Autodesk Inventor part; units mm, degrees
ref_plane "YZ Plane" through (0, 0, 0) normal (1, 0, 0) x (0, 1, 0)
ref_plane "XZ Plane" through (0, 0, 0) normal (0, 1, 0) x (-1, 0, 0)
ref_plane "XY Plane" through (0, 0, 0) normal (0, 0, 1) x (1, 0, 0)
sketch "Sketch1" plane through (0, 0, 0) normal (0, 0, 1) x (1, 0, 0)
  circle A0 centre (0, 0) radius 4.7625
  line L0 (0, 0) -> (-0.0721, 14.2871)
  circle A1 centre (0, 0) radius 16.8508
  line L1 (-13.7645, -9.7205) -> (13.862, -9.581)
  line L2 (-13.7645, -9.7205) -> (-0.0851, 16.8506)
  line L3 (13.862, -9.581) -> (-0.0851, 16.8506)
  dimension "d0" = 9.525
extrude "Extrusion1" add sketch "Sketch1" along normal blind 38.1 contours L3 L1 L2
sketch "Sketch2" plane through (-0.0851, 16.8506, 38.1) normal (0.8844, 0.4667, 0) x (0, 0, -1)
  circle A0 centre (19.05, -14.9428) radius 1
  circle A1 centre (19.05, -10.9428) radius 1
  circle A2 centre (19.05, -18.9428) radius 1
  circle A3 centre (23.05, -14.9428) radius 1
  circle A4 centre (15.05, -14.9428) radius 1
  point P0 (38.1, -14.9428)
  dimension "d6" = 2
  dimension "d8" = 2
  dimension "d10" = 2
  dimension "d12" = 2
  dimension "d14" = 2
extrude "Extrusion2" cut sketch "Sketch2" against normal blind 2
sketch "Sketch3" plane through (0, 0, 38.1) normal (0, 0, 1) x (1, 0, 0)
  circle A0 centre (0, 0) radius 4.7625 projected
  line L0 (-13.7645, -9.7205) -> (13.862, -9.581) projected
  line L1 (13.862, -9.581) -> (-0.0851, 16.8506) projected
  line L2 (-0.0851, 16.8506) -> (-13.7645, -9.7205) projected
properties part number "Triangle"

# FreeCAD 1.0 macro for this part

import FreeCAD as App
import Part
import Sketcher
from FreeCAD import Vector
Q = App.Units.Quantity


def add_polygon(sketch, points):
    """Adds a closed chain of lines whose ends are joined by coincident constraints."""
    first, n = sketch.GeometryCount, len(points)
    for a, b in zip(points, points[1:] + points[:1]):
        sketch.addGeometry(Part.LineSegment(App.Vector(*a, 0), App.Vector(*b, 0)), False)
    for i in range(n):
        sketch.addConstraint(Sketcher.Constraint("Coincident", first + i, 2, first + (i + 1) % n, 1))

doc = App.newDocument("Part")
body = doc.addObject("PartDesign::Body", "Body")

# Sketch on XY plane
sketch1 = body.newObject("Sketcher::SketchObject", "Sketch")
sketch1.AttachmentSupport = (doc.getObject("XY_Plane"), [""])
sketch1.MapMode = "FlatFace"
add_polygon(sketch1, [(13.9, -9.6), (-0.1, 16.9), (-13.8, -9.7)])  # lines 0-2
sketch1.addGeometry(Part.Circle(Vector(0, 0, 0), Vector(0, 0, 1), 4.8), False)  # 3
sketch1.addConstraint(Sketcher.Constraint("Coincident", 3, 3, -1, 1))
sketch1.addConstraint(Sketcher.Constraint("Equal", 0, 1))
sketch1.addConstraint(Sketcher.Constraint("Diameter", 3, Q("0.375 in")))
sketch1.addConstraint(Sketcher.Constraint("Angle", 0, Q("117.8192 deg")))
sketch1.addConstraint(Sketcher.Constraint("Angle", 1, Q("-117.2404 deg")))
sketch1.addConstraint(Sketcher.Constraint("Distance", 0, Q("1.1766 in")))
sketch1.addConstraint(Sketcher.Constraint("DistanceY", -1, 1, 0, 2, Q("0.6634 in")))
sketch1.addConstraint(Sketcher.Constraint("DistanceX", 1, 2, -1, 1, Q("0.5419 in")))
pad1 = body.newObject("PartDesign::Pad", "Pad")
pad1.Profile = sketch1
pad1.Length = Q("1.5 in")

# Sketch on an angled plane
sketch2 = body.newObject("Sketcher::SketchObject", "Sketch001")
sketch2.Placement = App.Placement(Vector(-0.0851, 16.8506, 38.1), App.Rotation(Vector(0, 0, -1), Vector(-0.466706476, 0.884412271, 0), Vector(0.884412271, 0.466706476, 0), "ZXY"))
sketch2.addGeometry(Part.Circle(Vector(19.1, -14.9, 0), Vector(0, 0, 1), 1), False)
sketch2.addGeometry(Part.Circle(Vector(19.1, -10.9, 0), Vector(0, 0, 1), 1), False)
sketch2.addGeometry(Part.Circle(Vector(19.1, -18.9, 0), Vector(0, 0, 1), 1), False)
sketch2.addGeometry(Part.Circle(Vector(23.1, -14.9, 0), Vector(0, 0, 1), 1), False)
sketch2.addGeometry(Part.Circle(Vector(15.1, -14.9, 0), Vector(0, 0, 1), 1), False)
sketch2.addConstraint(Sketcher.Constraint("Equal", 0, 1))
sketch2.addConstraint(Sketcher.Constraint("Equal", 1, 2))
sketch2.addConstraint(Sketcher.Constraint("Equal", 2, 3))
sketch2.addConstraint(Sketcher.Constraint("Equal", 3, 4))
sketch2.addConstraint(Sketcher.Constraint("Horizontal", 0, 3, 3, 3))
sketch2.addConstraint(Sketcher.Constraint("Horizontal", 3, 3, 4, 3))
sketch2.addConstraint(Sketcher.Constraint("Vertical", 0, 3, 1, 3))
sketch2.addConstraint(Sketcher.Constraint("Vertical", 1, 3, 2, 3))
sketch2.addConstraint(Sketcher.Constraint("Diameter", 0, 2.0))
sketch2.addConstraint(Sketcher.Constraint("DistanceX", -1, 1, 0, 3, Q("0.75 in")))
sketch2.addConstraint(Sketcher.Constraint("DistanceY", 0, 3, -1, 1, Q("0.5883 in")))
sketch2.addConstraint(Sketcher.Constraint("DistanceY", 1, 3, -1, 1, 10.9428))
sketch2.addConstraint(Sketcher.Constraint("DistanceY", 2, 3, -1, 1, 18.9428))
sketch2.addConstraint(Sketcher.Constraint("DistanceX", -1, 1, 3, 3, 23.05))
sketch2.addConstraint(Sketcher.Constraint("DistanceX", -1, 1, 4, 3, 15.05))
pocket1 = body.newObject("PartDesign::Pocket", "Pocket")
pocket1.Profile = sketch2
pocket1.Length = 2

doc.recompute()
